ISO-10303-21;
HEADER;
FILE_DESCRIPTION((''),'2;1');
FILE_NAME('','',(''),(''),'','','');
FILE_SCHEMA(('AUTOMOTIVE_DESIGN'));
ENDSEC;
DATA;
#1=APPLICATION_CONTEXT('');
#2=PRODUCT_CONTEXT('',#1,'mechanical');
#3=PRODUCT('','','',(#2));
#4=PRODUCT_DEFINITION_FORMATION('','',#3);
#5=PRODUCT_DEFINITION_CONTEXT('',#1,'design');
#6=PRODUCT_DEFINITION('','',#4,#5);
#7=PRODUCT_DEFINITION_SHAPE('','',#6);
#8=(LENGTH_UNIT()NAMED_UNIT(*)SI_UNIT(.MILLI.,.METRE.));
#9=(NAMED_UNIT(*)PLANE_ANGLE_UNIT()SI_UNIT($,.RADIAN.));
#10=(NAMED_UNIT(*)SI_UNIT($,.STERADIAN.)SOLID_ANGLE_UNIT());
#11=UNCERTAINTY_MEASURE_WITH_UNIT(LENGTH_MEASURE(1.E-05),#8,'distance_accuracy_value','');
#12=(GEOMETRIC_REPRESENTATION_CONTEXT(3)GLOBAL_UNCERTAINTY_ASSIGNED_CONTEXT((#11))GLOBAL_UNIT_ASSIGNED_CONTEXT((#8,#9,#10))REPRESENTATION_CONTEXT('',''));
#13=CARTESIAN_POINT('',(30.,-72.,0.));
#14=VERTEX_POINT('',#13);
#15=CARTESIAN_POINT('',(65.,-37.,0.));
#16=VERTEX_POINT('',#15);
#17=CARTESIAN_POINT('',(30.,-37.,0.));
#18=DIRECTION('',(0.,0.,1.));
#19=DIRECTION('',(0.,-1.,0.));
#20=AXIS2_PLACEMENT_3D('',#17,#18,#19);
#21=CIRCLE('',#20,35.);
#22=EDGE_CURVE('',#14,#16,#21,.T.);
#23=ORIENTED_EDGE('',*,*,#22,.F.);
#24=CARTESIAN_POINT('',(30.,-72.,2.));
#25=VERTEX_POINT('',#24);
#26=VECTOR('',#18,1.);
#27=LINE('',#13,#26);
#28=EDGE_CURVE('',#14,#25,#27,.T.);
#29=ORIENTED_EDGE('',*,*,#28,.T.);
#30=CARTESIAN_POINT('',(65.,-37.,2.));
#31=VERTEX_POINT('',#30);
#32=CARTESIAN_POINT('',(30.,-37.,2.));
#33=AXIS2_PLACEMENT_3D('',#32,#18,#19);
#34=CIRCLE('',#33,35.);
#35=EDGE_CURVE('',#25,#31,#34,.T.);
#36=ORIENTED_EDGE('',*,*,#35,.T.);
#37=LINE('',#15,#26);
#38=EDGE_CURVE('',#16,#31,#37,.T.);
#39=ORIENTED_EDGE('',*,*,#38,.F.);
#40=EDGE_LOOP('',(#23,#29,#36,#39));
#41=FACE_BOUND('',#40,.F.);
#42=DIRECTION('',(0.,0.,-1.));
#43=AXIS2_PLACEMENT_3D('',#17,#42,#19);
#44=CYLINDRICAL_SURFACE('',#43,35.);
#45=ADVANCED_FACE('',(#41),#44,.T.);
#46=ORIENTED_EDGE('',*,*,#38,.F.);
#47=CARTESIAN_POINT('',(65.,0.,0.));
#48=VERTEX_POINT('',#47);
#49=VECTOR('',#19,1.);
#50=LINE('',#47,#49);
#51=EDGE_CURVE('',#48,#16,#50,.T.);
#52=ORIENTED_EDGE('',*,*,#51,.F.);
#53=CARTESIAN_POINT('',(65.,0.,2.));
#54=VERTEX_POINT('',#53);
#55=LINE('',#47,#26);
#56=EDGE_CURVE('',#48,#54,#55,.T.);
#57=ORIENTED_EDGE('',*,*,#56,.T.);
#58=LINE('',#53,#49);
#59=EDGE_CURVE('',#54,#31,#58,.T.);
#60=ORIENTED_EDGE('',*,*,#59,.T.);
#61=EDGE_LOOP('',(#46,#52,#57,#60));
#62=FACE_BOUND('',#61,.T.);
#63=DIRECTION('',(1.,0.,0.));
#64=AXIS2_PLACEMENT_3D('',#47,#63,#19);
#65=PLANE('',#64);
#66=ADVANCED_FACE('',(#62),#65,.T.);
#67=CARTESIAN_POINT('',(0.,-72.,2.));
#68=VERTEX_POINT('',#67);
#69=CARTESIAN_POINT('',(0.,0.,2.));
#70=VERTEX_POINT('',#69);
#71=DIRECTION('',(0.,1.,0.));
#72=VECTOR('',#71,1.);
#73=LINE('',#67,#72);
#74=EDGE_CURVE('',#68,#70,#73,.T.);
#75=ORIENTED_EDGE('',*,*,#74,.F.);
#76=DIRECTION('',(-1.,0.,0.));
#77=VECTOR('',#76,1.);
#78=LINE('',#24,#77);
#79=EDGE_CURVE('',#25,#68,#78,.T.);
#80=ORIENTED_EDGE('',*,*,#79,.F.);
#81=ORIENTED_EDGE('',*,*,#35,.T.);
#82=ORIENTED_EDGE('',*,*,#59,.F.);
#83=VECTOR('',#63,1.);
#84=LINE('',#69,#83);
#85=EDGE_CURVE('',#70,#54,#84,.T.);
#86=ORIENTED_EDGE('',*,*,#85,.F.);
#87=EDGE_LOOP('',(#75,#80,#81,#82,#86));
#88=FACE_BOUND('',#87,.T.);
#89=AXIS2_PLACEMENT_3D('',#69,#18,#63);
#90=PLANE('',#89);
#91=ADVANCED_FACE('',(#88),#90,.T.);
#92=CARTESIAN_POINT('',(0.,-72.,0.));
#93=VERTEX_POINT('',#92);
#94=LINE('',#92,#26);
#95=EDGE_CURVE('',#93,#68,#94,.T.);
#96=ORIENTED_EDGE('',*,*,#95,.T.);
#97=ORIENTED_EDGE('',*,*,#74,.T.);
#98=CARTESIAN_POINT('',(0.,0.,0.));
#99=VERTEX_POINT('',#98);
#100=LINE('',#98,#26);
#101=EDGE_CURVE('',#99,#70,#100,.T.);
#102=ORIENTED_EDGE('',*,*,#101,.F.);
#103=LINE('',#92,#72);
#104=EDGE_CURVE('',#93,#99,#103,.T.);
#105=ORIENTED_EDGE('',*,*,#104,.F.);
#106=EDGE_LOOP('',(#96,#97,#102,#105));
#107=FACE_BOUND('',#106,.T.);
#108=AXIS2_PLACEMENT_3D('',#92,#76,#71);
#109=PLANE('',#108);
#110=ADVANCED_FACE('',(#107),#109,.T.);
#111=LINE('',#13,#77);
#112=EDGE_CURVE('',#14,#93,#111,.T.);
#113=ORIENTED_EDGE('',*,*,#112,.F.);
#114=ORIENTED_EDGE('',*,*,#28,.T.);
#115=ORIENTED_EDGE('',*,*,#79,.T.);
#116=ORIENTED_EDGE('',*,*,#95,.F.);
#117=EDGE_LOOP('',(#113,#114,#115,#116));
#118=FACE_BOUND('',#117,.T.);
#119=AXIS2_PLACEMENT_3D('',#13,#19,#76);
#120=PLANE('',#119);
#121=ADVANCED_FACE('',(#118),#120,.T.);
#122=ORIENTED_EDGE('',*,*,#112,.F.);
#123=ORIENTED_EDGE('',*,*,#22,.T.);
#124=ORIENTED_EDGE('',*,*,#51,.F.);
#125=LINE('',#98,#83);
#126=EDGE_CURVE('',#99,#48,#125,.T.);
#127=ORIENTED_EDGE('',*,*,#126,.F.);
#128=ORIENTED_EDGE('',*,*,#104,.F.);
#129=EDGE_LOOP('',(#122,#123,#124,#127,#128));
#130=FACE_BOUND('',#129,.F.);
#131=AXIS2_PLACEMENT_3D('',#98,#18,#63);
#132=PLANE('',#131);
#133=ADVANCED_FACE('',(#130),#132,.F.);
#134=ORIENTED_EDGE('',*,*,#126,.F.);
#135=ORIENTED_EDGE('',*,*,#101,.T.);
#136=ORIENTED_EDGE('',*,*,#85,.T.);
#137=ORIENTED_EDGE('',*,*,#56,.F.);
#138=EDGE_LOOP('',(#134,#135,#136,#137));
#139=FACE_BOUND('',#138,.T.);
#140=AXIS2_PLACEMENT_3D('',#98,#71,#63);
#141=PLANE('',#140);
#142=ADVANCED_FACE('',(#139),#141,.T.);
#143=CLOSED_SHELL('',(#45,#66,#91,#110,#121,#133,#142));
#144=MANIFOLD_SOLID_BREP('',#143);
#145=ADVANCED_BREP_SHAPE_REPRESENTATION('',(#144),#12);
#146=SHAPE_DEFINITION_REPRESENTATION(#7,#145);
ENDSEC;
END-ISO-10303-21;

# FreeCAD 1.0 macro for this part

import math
import FreeCAD as App
import Part
import Sketcher

doc = App.newDocument("Part")
body = doc.addObject("PartDesign::Body", "Body")

# Sketch on XY plane
sketch1 = body.newObject("Sketcher::SketchObject", "Sketch")
sketch1.AttachmentSupport = (doc.getObject("XY_Plane"), [""])
sketch1.MapMode = "FlatFace"
sketch1.addGeometry([
    Part.LineSegment(App.Vector(65, 0, 0), App.Vector(0, 0, 0)),  # 0
    Part.LineSegment(App.Vector(0, 0, 0), App.Vector(0, -72, 0)),  # 1
    Part.LineSegment(App.Vector(0, -72, 0), App.Vector(30, -72, 0)),  # 2
    Part.ArcOfCircle(Part.Circle(App.Vector(30, -37, 0), App.Vector(0, 0, 1), 35), math.radians(-90), math.radians(0)),  # 3
    Part.LineSegment(App.Vector(65, -37, 0), App.Vector(65, 0, 0)),  # 4
], False)
sketch1.addConstraint([
    Sketcher.Constraint("Coincident", 0, 2, 1, 1),
    Sketcher.Constraint("Coincident", 1, 2, 2, 1),
    Sketcher.Constraint("Tangent", 2, 2, 3, 1),
    Sketcher.Constraint("Tangent", 3, 2, 4, 1),
    Sketcher.Constraint("Coincident", 4, 2, 0, 1),
    Sketcher.Constraint("Horizontal", 0),
    Sketcher.Constraint("Vertical", 1),
    Sketcher.Constraint("Horizontal", 2),
    Sketcher.Constraint("Vertical", 4),
    Sketcher.Constraint("Coincident", 0, 2, -1, 1),
    Sketcher.Constraint("Radius", 3, 35.0),
    Sketcher.Constraint("DistanceX", 0, 2, 0, 1, 65.0),
    Sketcher.Constraint("DistanceY", 1, 2, 1, 1, 72.0),
])
pad1 = body.newObject("PartDesign::Pad", "Pad")
pad1.Profile = sketch1
pad1.Length = 2

doc.recompute()
